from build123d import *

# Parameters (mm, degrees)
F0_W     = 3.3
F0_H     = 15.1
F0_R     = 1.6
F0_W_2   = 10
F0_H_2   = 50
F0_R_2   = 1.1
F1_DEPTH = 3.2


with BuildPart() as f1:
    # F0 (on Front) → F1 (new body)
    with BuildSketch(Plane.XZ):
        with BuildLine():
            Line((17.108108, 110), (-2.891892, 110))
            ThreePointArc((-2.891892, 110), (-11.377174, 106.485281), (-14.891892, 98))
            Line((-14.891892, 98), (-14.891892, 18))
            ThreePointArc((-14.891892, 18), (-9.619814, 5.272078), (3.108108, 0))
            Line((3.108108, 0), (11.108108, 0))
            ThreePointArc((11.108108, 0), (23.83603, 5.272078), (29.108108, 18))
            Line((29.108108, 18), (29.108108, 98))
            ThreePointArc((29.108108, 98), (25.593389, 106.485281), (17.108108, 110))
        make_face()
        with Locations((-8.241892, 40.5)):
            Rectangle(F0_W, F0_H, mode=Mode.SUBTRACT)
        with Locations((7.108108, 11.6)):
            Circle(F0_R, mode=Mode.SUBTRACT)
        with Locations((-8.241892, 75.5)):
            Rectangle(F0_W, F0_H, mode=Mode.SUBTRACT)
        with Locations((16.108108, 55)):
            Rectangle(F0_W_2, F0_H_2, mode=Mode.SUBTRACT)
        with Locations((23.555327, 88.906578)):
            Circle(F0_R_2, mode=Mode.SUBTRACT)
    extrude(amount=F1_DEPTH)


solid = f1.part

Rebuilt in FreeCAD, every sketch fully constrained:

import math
import FreeCAD as App
import Part
import Sketcher


def add_polygon(sketch, points):
    """Adds a closed chain of lines whose ends are joined by coincident constraints."""
    first, n = sketch.GeometryCount, len(points)
    for a, b in zip(points, points[1:] + points[:1]):
        sketch.addGeometry(Part.LineSegment(App.Vector(*a, 0), App.Vector(*b, 0)), False)
    for i in range(n):
        sketch.addConstraint(Sketcher.Constraint("Coincident", first + i, 2, first + (i + 1) % n, 1))

doc = App.newDocument("Part")
body = doc.addObject("PartDesign::Body", "Body")

# Sketch on XZ plane
sketch1 = doc.addObject("Sketcher::SketchObject", "Sketch")
body.addObject(sketch1)
sketch1.AttachmentSupport = (doc.XZ_Plane, [""])
sketch1.MapMode = "FlatFace"
sketch1.addGeometry(Part.LineSegment(App.Vector(17.108108, 110, 0), App.Vector(-2.891892, 110, 0)), False)  # 0
sketch1.addGeometry(Part.ArcOfCircle(Part.Circle(App.Vector(-2.891892, 98, 0), App.Vector(0, 0, 1), 12), math.radians(89.999998), math.radians(180.000002)), False)  # 1
sketch1.addGeometry(Part.LineSegment(App.Vector(-14.891892, 98, 0), App.Vector(-14.891892, 18, 0)), False)  # 2
sketch1.addGeometry(Part.ArcOfCircle(Part.Circle(App.Vector(3.108108, 18, 0), App.Vector(0, 0, 1), 18), math.radians(-179.999999), math.radians(-90.000001)), False)  # 3
sketch1.addGeometry(Part.LineSegment(App.Vector(3.108108, 0, 0), App.Vector(11.108108, 0, 0)), False)  # 4
sketch1.addGeometry(Part.ArcOfCircle(Part.Circle(App.Vector(11.108108, 18, 0), App.Vector(0, 0, 1), 18), math.radians(-89.999999), math.radians(-0.000001)), False)  # 5
sketch1.addGeometry(Part.LineSegment(App.Vector(29.108108, 18, 0), App.Vector(29.108108, 98, 0)), False)  # 6
sketch1.addGeometry(Part.ArcOfCircle(Part.Circle(App.Vector(17.108107, 97.999999, 0), App.Vector(0, 0, 1), 12.000001), math.radians(0.000006), math.radians(89.999994)), False)  # 7
sketch1.addGeometry(Part.Circle(App.Vector(7.108108, 11.6, 0), App.Vector(0, 0, 1), 1.6), False)  # 8
add_polygon(sketch1, [(-6.591892, 32.95), (-9.891892, 32.95), (-9.891892, 48.05), (-6.591892, 48.05)])  # lines 9-12
add_polygon(sketch1, [(-6.591892, 67.95), (-9.891892, 67.95), (-9.891892, 83.05), (-6.591892, 83.05)])  # lines 13-16
add_polygon(sketch1, [(21.108108, 30), (11.108108, 30), (11.108108, 80), (21.108108, 80)])  # lines 17-20
sketch1.addGeometry(Part.Circle(App.Vector(23.555327, 88.906578, 0), App.Vector(0, 0, 1), 1.1), False)  # 21
sketch1.addConstraint(Sketcher.Constraint("Tangent", 0, 2, 1, 1))
sketch1.addConstraint(Sketcher.Constraint("Tangent", 1, 2, 2, 1))
sketch1.addConstraint(Sketcher.Constraint("Tangent", 2, 2, 3, 1))
sketch1.addConstraint(Sketcher.Constraint("Tangent", 3, 2, 4, 1))
sketch1.addConstraint(Sketcher.Constraint("Tangent", 4, 2, 5, 1))
sketch1.addConstraint(Sketcher.Constraint("Tangent", 5, 2, 6, 1))
sketch1.addConstraint(Sketcher.Constraint("Tangent", 6, 2, 7, 1))
sketch1.addConstraint(Sketcher.Constraint("Tangent", 7, 2, 0, 1))
sketch1.addConstraint(Sketcher.Constraint("Horizontal", 0))
sketch1.addConstraint(Sketcher.Constraint("Vertical", 2))
sketch1.addConstraint(Sketcher.Constraint("Horizontal", 4))
sketch1.addConstraint(Sketcher.Constraint("Vertical", 6))
sketch1.addConstraint(Sketcher.Constraint("Horizontal", 9))
sketch1.addConstraint(Sketcher.Constraint("Vertical", 10))
sketch1.addConstraint(Sketcher.Constraint("Horizontal", 11))
sketch1.addConstraint(Sketcher.Constraint("Vertical", 12))
sketch1.addConstraint(Sketcher.Constraint("Horizontal", 13))
sketch1.addConstraint(Sketcher.Constraint("Vertical", 14))
sketch1.addConstraint(Sketcher.Constraint("Horizontal", 15))
sketch1.addConstraint(Sketcher.Constraint("Vertical", 16))
sketch1.addConstraint(Sketcher.Constraint("Horizontal", 17))
sketch1.addConstraint(Sketcher.Constraint("Vertical", 18))
sketch1.addConstraint(Sketcher.Constraint("Horizontal", 19))
sketch1.addConstraint(Sketcher.Constraint("Vertical", 20))
sketch1.addConstraint(Sketcher.Constraint("Equal", 3, 5))
sketch1.addConstraint(Sketcher.Constraint("Equal", 1, 7))
sketch1.addConstraint(Sketcher.Constraint("PointOnObject", 3, 2, -1))
sketch1.addConstraint(Sketcher.Constraint("Vertical", 10, 2, 13, 2))
sketch1.addConstraint(Sketcher.Constraint("Vertical", 12, 2, 15, 2))
sketch1.addConstraint(Sketcher.Constraint("Vertical", 4, 2, 17, 2))
sketch1.addConstraint(Sketcher.Constraint("Equal", 12, 14))
sketch1.addConstraint(Sketcher.Constraint("Radius", 1, 12.0))
sketch1.addConstraint(Sketcher.Constraint("Radius", 3, 18.0))
sketch1.addConstraint(Sketcher.Constraint("Diameter", 8, 3.2))
sketch1.addConstraint(Sketcher.Constraint("Diameter", 21, 2.2))
sketch1.addConstraint(Sketcher.Constraint("DistanceX", 0, 2, 0, 1, 20.0))
sketch1.addConstraint(Sketcher.Constraint("DistanceX", 17, 2, 17, 1, 10.0))
sketch1.addConstraint(Sketcher.Constraint("DistanceY", 2, 2, 2, 1, 80.0))
sketch1.addConstraint(Sketcher.Constraint("DistanceY", 18, 1, 18, 2, 50.0))
sketch1.addConstraint(Sketcher.Constraint("DistanceX", 9, 2, 9, 1, 3.3))
sketch1.addConstraint(Sketcher.Constraint("DistanceY", 10, 1, 10, 2, 15.1))
sketch1.addConstraint(Sketcher.Constraint("DistanceY", -1, 1, 17, 2, 30.0))
sketch1.addConstraint(Sketcher.Constraint("DistanceX", 3, 3, 8, 3, 4.0))
sketch1.addConstraint(Sketcher.Constraint("DistanceX", 2, 2, 9, 2, 5.0))
sketch1.addConstraint(Sketcher.Constraint("DistanceY", 9, 2, 13, 2, 35.0))
sketch1.addConstraint(Sketcher.Constraint("DistanceY", -1, 1, 8, 3, 11.6))
sketch1.addConstraint(Sketcher.Constraint("DistanceY", -1, 1, 9, 2, 32.95))
sketch1.addConstraint(Sketcher.Constraint("DistanceX", -1, 1, 3, 3, 3.108108))
sketch1.addConstraint(Sketcher.Constraint("DistanceX", 7, 3, 21, 3, 6.44722))
sketch1.addConstraint(Sketcher.Constraint("DistanceY", 21, 3, 7, 3, 9.093421))
pad1 = doc.addObject("PartDesign::Pad", "Pad")
body.addObject(pad1)
pad1.Profile = sketch1
pad1.Length = 3.2

doc.recompute()
